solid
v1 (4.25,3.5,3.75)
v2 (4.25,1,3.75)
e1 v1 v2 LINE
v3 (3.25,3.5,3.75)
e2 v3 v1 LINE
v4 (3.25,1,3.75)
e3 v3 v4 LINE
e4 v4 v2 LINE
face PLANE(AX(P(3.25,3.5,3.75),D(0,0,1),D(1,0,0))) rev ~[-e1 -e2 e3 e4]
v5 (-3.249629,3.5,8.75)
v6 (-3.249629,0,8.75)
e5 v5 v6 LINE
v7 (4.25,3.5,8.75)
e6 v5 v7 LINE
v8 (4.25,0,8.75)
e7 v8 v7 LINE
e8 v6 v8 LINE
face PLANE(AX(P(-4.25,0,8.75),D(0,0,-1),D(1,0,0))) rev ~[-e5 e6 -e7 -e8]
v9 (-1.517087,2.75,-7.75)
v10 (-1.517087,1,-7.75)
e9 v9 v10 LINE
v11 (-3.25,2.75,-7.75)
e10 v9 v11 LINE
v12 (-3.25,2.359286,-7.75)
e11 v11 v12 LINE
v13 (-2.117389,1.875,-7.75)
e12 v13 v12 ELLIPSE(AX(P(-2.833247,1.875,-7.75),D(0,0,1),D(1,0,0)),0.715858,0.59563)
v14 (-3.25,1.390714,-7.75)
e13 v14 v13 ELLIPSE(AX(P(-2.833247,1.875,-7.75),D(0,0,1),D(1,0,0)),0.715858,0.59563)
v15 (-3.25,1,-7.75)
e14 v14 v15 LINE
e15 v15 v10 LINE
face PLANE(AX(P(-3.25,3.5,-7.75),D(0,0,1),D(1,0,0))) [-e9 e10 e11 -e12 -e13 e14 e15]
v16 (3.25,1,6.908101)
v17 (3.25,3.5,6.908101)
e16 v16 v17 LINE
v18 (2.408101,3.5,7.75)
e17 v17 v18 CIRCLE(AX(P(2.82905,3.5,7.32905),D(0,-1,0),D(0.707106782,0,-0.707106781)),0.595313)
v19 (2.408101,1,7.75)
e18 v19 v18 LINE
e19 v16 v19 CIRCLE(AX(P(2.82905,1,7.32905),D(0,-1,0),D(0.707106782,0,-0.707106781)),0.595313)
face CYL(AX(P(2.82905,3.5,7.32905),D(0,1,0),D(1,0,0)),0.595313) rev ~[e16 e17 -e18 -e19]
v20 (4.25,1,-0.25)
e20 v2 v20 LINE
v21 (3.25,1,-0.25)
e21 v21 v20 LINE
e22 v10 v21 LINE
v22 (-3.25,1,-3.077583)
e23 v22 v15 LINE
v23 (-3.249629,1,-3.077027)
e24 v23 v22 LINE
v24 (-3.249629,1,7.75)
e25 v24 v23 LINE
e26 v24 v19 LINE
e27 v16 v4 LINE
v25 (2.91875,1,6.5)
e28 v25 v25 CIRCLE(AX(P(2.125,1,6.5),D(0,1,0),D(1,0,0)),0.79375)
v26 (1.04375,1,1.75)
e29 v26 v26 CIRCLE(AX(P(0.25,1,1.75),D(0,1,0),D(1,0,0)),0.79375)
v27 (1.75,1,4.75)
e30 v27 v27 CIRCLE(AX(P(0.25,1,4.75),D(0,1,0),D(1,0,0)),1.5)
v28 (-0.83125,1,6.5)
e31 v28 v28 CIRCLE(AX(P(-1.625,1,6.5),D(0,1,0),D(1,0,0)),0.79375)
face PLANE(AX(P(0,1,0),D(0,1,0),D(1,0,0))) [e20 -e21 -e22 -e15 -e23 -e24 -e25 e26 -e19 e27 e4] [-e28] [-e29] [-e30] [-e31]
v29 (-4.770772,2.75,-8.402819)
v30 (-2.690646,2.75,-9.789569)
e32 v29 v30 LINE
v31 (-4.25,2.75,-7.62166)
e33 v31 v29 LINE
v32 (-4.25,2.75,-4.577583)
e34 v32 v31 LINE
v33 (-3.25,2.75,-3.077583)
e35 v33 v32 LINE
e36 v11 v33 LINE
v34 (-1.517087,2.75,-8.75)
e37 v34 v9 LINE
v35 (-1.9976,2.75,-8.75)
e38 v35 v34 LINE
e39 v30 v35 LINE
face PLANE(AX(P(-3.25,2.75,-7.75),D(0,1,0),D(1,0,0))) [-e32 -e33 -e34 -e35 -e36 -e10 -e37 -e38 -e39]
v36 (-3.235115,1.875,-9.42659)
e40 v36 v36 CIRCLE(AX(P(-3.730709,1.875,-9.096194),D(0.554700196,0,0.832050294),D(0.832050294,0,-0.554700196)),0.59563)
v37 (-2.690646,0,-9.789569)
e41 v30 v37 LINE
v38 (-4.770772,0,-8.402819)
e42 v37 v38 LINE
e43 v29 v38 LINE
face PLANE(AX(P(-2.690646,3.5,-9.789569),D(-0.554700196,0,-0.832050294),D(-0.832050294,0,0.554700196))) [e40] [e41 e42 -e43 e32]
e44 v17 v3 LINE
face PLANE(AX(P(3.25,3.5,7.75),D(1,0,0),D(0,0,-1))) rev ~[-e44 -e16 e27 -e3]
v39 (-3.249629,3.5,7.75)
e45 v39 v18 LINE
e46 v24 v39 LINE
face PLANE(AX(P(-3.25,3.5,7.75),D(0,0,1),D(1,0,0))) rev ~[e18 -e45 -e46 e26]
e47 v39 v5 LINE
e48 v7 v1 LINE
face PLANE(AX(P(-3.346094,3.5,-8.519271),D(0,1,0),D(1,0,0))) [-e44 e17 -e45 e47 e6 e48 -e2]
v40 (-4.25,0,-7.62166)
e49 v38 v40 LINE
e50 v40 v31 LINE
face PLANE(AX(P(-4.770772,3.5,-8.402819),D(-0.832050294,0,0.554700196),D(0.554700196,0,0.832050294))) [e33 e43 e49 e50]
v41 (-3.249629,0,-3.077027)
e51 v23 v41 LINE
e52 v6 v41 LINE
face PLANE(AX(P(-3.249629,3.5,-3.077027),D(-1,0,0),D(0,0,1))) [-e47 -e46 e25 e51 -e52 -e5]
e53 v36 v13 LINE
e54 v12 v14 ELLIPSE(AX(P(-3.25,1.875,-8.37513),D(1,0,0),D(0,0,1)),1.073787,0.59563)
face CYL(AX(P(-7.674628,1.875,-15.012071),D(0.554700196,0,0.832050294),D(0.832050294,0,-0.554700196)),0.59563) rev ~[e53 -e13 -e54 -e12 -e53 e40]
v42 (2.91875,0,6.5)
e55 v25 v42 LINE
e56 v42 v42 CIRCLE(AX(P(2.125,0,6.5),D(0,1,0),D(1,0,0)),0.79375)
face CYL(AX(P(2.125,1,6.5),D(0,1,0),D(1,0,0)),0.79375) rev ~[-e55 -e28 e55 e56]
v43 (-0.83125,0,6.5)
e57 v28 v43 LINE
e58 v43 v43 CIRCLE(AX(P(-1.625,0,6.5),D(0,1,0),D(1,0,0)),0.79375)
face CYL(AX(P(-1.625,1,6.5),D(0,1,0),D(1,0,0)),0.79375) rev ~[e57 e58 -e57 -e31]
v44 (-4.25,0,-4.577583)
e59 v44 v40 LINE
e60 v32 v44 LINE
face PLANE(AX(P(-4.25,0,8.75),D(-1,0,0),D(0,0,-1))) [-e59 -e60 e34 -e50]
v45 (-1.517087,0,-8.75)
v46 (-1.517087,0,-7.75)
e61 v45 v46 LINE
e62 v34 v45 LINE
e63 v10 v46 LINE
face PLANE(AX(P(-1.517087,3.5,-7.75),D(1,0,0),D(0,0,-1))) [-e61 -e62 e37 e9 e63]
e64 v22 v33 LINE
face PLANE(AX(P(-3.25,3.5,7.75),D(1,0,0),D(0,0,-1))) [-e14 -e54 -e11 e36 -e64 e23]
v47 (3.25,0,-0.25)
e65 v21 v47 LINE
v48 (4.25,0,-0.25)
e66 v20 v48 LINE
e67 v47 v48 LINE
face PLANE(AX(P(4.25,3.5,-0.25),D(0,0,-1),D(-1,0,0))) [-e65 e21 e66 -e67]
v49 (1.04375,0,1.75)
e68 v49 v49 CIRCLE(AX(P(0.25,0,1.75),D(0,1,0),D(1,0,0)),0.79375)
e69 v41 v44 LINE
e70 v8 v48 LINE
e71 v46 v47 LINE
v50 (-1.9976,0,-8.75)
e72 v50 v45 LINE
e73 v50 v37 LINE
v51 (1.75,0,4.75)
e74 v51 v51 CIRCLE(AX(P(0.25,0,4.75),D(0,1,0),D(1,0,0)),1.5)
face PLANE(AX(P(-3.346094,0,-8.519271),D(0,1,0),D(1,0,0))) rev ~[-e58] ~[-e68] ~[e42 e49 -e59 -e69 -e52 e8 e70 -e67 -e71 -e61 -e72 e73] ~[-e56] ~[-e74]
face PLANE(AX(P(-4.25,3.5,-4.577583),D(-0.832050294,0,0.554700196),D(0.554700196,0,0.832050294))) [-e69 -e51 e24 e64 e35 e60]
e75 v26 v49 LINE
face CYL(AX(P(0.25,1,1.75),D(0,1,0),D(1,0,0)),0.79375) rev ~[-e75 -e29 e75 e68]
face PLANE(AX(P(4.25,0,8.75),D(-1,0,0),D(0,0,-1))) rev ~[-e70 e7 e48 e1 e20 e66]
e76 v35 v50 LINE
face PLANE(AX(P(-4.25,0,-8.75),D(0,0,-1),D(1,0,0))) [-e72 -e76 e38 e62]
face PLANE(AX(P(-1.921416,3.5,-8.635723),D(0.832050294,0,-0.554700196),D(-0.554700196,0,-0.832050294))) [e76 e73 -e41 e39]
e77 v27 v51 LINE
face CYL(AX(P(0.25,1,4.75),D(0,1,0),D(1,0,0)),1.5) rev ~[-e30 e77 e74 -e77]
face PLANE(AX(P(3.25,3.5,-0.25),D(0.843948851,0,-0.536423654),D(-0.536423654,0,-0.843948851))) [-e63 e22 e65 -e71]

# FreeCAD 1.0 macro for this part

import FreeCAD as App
import Part
import Sketcher

doc = App.newDocument("Part")
body = doc.addObject("PartDesign::Body", "Body")

# Sketch on XZ plane
sketch1 = doc.addObject("Sketcher::SketchObject", "Sketch")
body.addObject(sketch1)
sketch1.AttachmentSupport = (doc.XZ_Plane, [""])
sketch1.MapMode = "FlatFace"
sketch1.addGeometry([
    Part.LineSegment(App.Vector(-4, -9, 0), App.Vector(-4, 9, 0)),
    Part.LineSegment(App.Vector(-4, 9, 0), App.Vector(4, 9, 0)),
    Part.LineSegment(App.Vector(4, 9, 0), App.Vector(4, -9, 0)),
    Part.LineSegment(App.Vector(4, -9, 0), App.Vector(-4, -9, 0)),
], False)
sketch1.addConstraint([
    Sketcher.Constraint("Coincident", 0, 2, 1, 1),
    Sketcher.Constraint("Coincident", 1, 2, 2, 1),
    Sketcher.Constraint("Coincident", 2, 2, 3, 1),
    Sketcher.Constraint("Coincident", 3, 2, 0, 1),
    Sketcher.Constraint("Vertical", 0),
    Sketcher.Constraint("Horizontal", 1),
    Sketcher.Constraint("Vertical", 2),
    Sketcher.Constraint("Horizontal", 3),
    Sketcher.Constraint("Symmetric", 0, 2, 2, 2, -1, 1),
    Sketcher.Constraint("DistanceX", 1, 1, 1, 2, 8.5),
    Sketcher.Constraint("DistanceY", 0, 1, 0, 2, 17.5),
])
pad1 = doc.addObject("PartDesign::Pad", "Pad")
body.addObject(pad1)
pad1.Profile = sketch1
pad1.Length = 3.5
pad1.Reversed = True

# Sketch on XZ plane
sketch2 = doc.addObject("Sketcher::SketchObject", "Sketch001")
body.addObject(sketch2)
sketch2.AttachmentSupport = (doc.XZ_Plane, [""])
sketch2.MapMode = "FlatFace"
sketch2.AttachmentOffset = App.Placement(App.Vector(0, 0, -3.5), App.Rotation())
sketch2.addGeometry([
    Part.LineSegment(App.Vector(-3, -8, 0), App.Vector(-3, 8, 0)),
    Part.LineSegment(App.Vector(-3, 8, 0), App.Vector(3, 8, 0)),
    Part.LineSegment(App.Vector(3, 8, 0), App.Vector(3, -8, 0)),
    Part.LineSegment(App.Vector(3, -8, 0), App.Vector(-3, -8, 0)),
], False)
sketch2.addConstraint([
    Sketcher.Constraint("Coincident", 0, 2, 1, 1),
    Sketcher.Constraint("Coincident", 1, 2, 2, 1),
    Sketcher.Constraint("Coincident", 2, 2, 3, 1),
    Sketcher.Constraint("Coincident", 3, 2, 0, 1),
    Sketcher.Constraint("Vertical", 0),
    Sketcher.Constraint("Horizontal", 1),
    Sketcher.Constraint("Vertical", 2),
    Sketcher.Constraint("Horizontal", 3),
    Sketcher.Constraint("Symmetric", 0, 2, 2, 2, -1, 1),
    Sketcher.Constraint("DistanceX", 1, 1, 1, 2, 6.5),
    Sketcher.Constraint("DistanceY", 0, 1, 0, 2, 15.5),
])
pocket1 = doc.addObject("PartDesign::Pocket", "Pocket")
body.addObject(pocket1)
pocket1.Profile = sketch2
pocket1.Length = 2.5
pocket1.Reversed = True

# Sketch on XZ plane
sketch3 = doc.addObject("Sketcher::SketchObject", "Sketch002")
body.addObject(sketch3)
sketch3.AttachmentSupport = (doc.XZ_Plane, [""])
sketch3.MapMode = "FlatFace"
sketch3.AttachmentOffset = App.Placement(App.Vector(0, 0, -1), App.Rotation())
sketch3.addGeometry(Part.Circle(App.Vector(0.2, 4.8, 0), App.Vector(0, 0, 1), 1.5), False)
sketch3.addConstraint([
    Sketcher.Constraint("Diameter", 0, 3.0),
    Sketcher.Constraint("DistanceX", -1, 1, 0, 3, 0.25),
    Sketcher.Constraint("DistanceY", -1, 1, 0, 3, 4.75),
])
pocket2 = doc.addObject("PartDesign::Pocket", "Pocket001")
body.addObject(pocket2)
pocket2.Profile = sketch3
pocket2.Type = "ThroughAll"
pocket2.Reversed = True

# Sketch on XZ plane
sketch4 = doc.addObject("Sketcher::SketchObject", "Sketch003")
body.addObject(sketch4)
sketch4.AttachmentSupport = (doc.XZ_Plane, [""])
sketch4.MapMode = "FlatFace"
sketch4.AttachmentOffset = App.Placement(App.Vector(0, 0, -3.5), App.Rotation())
sketch4.addGeometry(Part.Circle(App.Vector(2.8, 7.3, 0), App.Vector(0, 0, 1), 0.6), False)
sketch4.addConstraint([
    Sketcher.Constraint("Diameter", 0, 1.190625),
    Sketcher.Constraint("DistanceX", -1, 1, 0, 3, 2.82905),
    Sketcher.Constraint("DistanceY", -1, 1, 0, 3, 7.32905),
])
pocket3 = doc.addObject("PartDesign::Pocket", "Pocket002")
body.addObject(pocket3)
pocket3.Profile = sketch4
pocket3.Length = 2.5
pocket3.Reversed = True

# Sketch on XZ plane
sketch5 = doc.addObject("Sketcher::SketchObject", "Sketch004")
body.addObject(sketch5)
sketch5.AttachmentSupport = (doc.XZ_Plane, [""])
sketch5.MapMode = "FlatFace"
sketch5.AttachmentOffset = App.Placement(App.Vector(0, 0, -1), App.Rotation())
sketch5.addGeometry([
    Part.Circle(App.Vector(0.2, 1.8, 0), App.Vector(0, 0, 1), 0.8),
    Part.Circle(App.Vector(-1.6, 6.5, 0), App.Vector(0, 0, 1), 0.8),
    Part.Circle(App.Vector(2.1, 6.5, 0), App.Vector(0, 0, 1), 0.8),
], False)
sketch5.addConstraint([
    Sketcher.Constraint("Equal", 0, 1),
    Sketcher.Constraint("Equal", 1, 2),
    Sketcher.Constraint("Horizontal", 1, 3, 2, 3),
    Sketcher.Constraint("Diameter", 0, 1.5875),
    Sketcher.Constraint("DistanceY", -1, 1, 1, 3, 6.5),
    Sketcher.Constraint("DistanceX", -1, 1, 0, 3, 0.25),
    Sketcher.Constraint("DistanceY", -1, 1, 0, 3, 1.75),
    Sketcher.Constraint("DistanceX", 1, 3, 2, 3, 3.75),
    Sketcher.Constraint("DistanceX", 1, 3, -1, 1, 1.625),
])
pocket4 = doc.addObject("PartDesign::Pocket", "Pocket003")
body.addObject(pocket4)
pocket4.Profile = sketch5
pocket4.Type = "ThroughAll"
pocket4.Reversed = True

# Sketch on XZ plane
sketch6 = doc.addObject("Sketcher::SketchObject", "Sketch005")
body.addObject(sketch6)
sketch6.AttachmentSupport = (doc.XZ_Plane, [""])
sketch6.MapMode = "FlatFace"
sketch6.AttachmentOffset = App.Placement(App.Vector(0, 0, -3.5), App.Rotation())
sketch6.addGeometry([
    Part.LineSegment(App.Vector(-2.7, -9.8, 0), App.Vector(-4.8, -8.4, 0)),  # 0
    Part.LineSegment(App.Vector(-4.8, -8.4, 0), App.Vector(-4, -7.2, 0)),  # 1
    Part.LineSegment(App.Vector(-4, -7.2, 0), App.Vector(-3.4, -7.6, 0)),  # 2
    Part.LineSegment(App.Vector(-3.4, -7.6, 0), App.Vector(-2.5, -8.2, 0)),  # 3
    Part.LineSegment(App.Vector(-2.5, -8.2, 0), App.Vector(-1.9, -8.6, 0)),  # 4
    Part.LineSegment(App.Vector(-1.9, -8.6, 0), App.Vector(-2.7, -9.8, 0)),  # 5
], False)
sketch6.addConstraint([
    Sketcher.Constraint("Coincident", 0, 2, 1, 1),
    Sketcher.Constraint("Coincident", 1, 2, 2, 1),
    Sketcher.Constraint("Coincident", 2, 2, 3, 1),
    Sketcher.Constraint("Coincident", 3, 2, 4, 1),
    Sketcher.Constraint("Coincident", 4, 2, 5, 1),
    Sketcher.Constraint("Coincident", 5, 2, 0, 1),
    Sketcher.Constraint("Perpendicular", 0, 1),
    Sketcher.Constraint("Perpendicular", 1, 2),
    Sketcher.Constraint("Parallel", 2, 3),
    Sketcher.Constraint("Parallel", 3, 4),
    Sketcher.Constraint("Perpendicular", 4, 5),
    Sketcher.Constraint("Equal", 2, 4),
    Sketcher.Constraint("Distance", 0, 2.5),
    Sketcher.Constraint("Distance", 1, 1.38675),
    Sketcher.Constraint("Distance", 2, 0.70898),
    Sketcher.Constraint("DistanceY", 0, 2, -1, 1, 8.402819),
    Sketcher.Constraint("DistanceX", 1, 2, -1, 1, 4.001541),
    Sketcher.Constraint("DistanceY", 3, 2, -1, 1, 8.242452),
])
pad2 = doc.addObject("PartDesign::Pad", "Pad001")
body.addObject(pad2)
pad2.Profile = sketch6
pad2.Length = 3.5

# Sketch on XZ plane
sketch7 = doc.addObject("Sketcher::SketchObject", "Sketch006")
body.addObject(sketch7)
sketch7.AttachmentSupport = (doc.XZ_Plane, [""])
sketch7.MapMode = "FlatFace"
sketch7.AttachmentOffset = App.Placement(App.Vector(0, 0, -3.5), App.Rotation())
sketch7.addGeometry([
    Part.LineSegment(App.Vector(-6, -13, 0), App.Vector(-6, -2, 0)),
    Part.LineSegment(App.Vector(-6, -2, 0), App.Vector(0, -2, 0)),
    Part.LineSegment(App.Vector(0, -2, 0), App.Vector(0, -13, 0)),
    Part.LineSegment(App.Vector(0, -13, 0), App.Vector(-6, -13, 0)),
], False)
sketch7.addConstraint([
    Sketcher.Constraint("Coincident", 0, 2, 1, 1),
    Sketcher.Constraint("Coincident", 1, 2, 2, 1),
    Sketcher.Constraint("Coincident", 2, 2, 3, 1),
    Sketcher.Constraint("Coincident", 3, 2, 0, 1),
    Sketcher.Constraint("Vertical", 0),
    Sketcher.Constraint("Horizontal", 1),
    Sketcher.Constraint("Vertical", 2),
    Sketcher.Constraint("Horizontal", 3),
    Sketcher.Constraint("DistanceX", 1, 1, 1, 2, 6.011083),
    Sketcher.Constraint("DistanceY", 0, 1, 0, 2, 10.896718),
    Sketcher.Constraint("DistanceX", 0, 2, -1, 1, 6.255542),
    Sketcher.Constraint("DistanceY", 0, 2, -1, 1, 2.301641),
])
pocket5 = doc.addObject("PartDesign::Pocket", "Pocket004")
body.addObject(pocket5)
pocket5.Profile = sketch7
pocket5.Length = 0.75
pocket5.Reversed = True

# Sketch on an angled plane
sketch8 = doc.addObject("Sketcher::SketchObject", "Sketch007")
body.addObject(sketch8)
sketch8.Placement = App.Placement(App.Vector(-5.346154, 0, -8.019231), App.Rotation(App.Vector(-0.832050294, 0, 0.554700196), App.Vector(0, 0.999999999, 0), App.Vector(-0.554700196, 0, -0.832050294), "ZXY"))
sketch8.addGeometry(Part.Circle(App.Vector(-1.9, 1.9, 0), App.Vector(0, 0, 1), 0.6), False)
sketch8.addConstraint([
    Sketcher.Constraint("Diameter", 0, 1.19126),
    Sketcher.Constraint("DistanceY", -1, 1, 0, 3, 1.875),
    Sketcher.Constraint("DistanceX", 0, 3, -1, 1, 1.941523),
])
doc.recompute()
hole = doc.addObject("PartDesign::Hole", "Hole")
body.addObject(hole)
hole.Profile = sketch8
hole.ThreadType = "None"
hole.Diameter = 1.19126
hole.DepthType = "Dimension"
hole.Depth = 7.11
hole.DrillPoint = "Angled"
hole.DrillPointAngle = 118

# Sketch on XZ plane
sketch9 = doc.addObject("Sketcher::SketchObject", "Sketch008")
body.addObject(sketch9)
sketch9.AttachmentSupport = (doc.XZ_Plane, [""])
sketch9.MapMode = "FlatFace"
sketch9.AttachmentOffset = App.Placement(App.Vector(0, 0, -3.5), App.Rotation())
sketch9.addGeometry([
    Part.LineSegment(App.Vector(-4.2, 8.8, 0), App.Vector(-3.2, 8.8, 0)),
    Part.LineSegment(App.Vector(-3.2, 8.8, 0), App.Vector(-3.2, -3.1, 0)),
    Part.LineSegment(App.Vector(-3.2, -3.1, 0), App.Vector(-4.2, -4.6, 0)),
    Part.LineSegment(App.Vector(-4.2, -4.6, 0), App.Vector(-4.2, 8.8, 0)),
], False)
sketch9.addConstraint([
    Sketcher.Constraint("Coincident", 0, 2, 1, 1),
    Sketcher.Constraint("Coincident", 1, 2, 2, 1),
    Sketcher.Constraint("Coincident", 2, 2, 3, 1),
    Sketcher.Constraint("Coincident", 3, 2, 0, 1),
    Sketcher.Constraint("Horizontal", 0),
    Sketcher.Constraint("Vertical", 1),
    Sketcher.Constraint("Vertical", 3),
    Sketcher.Constraint("DistanceY", -1, 1, 0, 2, 8.75),
    Sketcher.Constraint("DistanceX", 2, 2, -1, 1, 4.25),
    Sketcher.Constraint("DistanceX", 0, 1, 0, 2, 1.000371),
    Sketcher.Constraint("DistanceY", 1, 2, 1, 1, 11.827027),
    Sketcher.Constraint("DistanceY", 3, 1, 3, 2, 13.327583),
])
pocket6 = doc.addObject("PartDesign::Pocket", "Pocket005")
body.addObject(pocket6)
pocket6.Profile = sketch9
pocket6.Type = "UpToFirst"
pocket6.Reversed = True

# Sketch on XZ plane
sketch10 = doc.addObject("Sketcher::SketchObject", "Sketch009")
body.addObject(sketch10)
sketch10.AttachmentSupport = (doc.XZ_Plane, [""])
sketch10.MapMode = "FlatFace"
sketch10.AttachmentOffset = App.Placement(App.Vector(0, 0, -3.5), App.Rotation())
sketch10.addGeometry([
    Part.LineSegment(App.Vector(-1.5, -7.8, 0), App.Vector(3.2, -0.2, 0)),  # 0
    Part.LineSegment(App.Vector(3.2, -0.2, 0), App.Vector(4.2, -0.2, 0)),  # 1
    Part.LineSegment(App.Vector(4.2, -0.2, 0), App.Vector(4.2, -8.8, 0)),  # 2
    Part.LineSegment(App.Vector(4.2, -8.8, 0), App.Vector(-1.5, -8.8, 0)),  # 3
    Part.LineSegment(App.Vector(-1.5, -8.8, 0), App.Vector(-1.5, -7.8, 0)),  # 4
], False)
sketch10.addConstraint([
    Sketcher.Constraint("Coincident", 0, 2, 1, 1),
    Sketcher.Constraint("Coincident", 1, 2, 2, 1),
    Sketcher.Constraint("Coincident", 2, 2, 3, 1),
    Sketcher.Constraint("Coincident", 3, 2, 4, 1),
    Sketcher.Constraint("Coincident", 4, 2, 0, 1),
    Sketcher.Constraint("Horizontal", 1),
    Sketcher.Constraint("Vertical", 2),
    Sketcher.Constraint("Horizontal", 3),
    Sketcher.Constraint("Vertical", 4),
    Sketcher.Constraint("Equal", 1, 4),
    Sketcher.Constraint("DistanceX", 1, 1, 1, 2, 1.0),
    Sketcher.Constraint("DistanceY", 2, 2, 2, 1, 8.5),
    Sketcher.Constraint("DistanceX", -1, 1, 0, 2, 3.25),
    Sketcher.Constraint("DistanceY", 0, 2, -1, 1, 0.25),
    Sketcher.Constraint("DistanceX", 3, 2, 3, 1, 5.767087),
])
pocket7 = doc.addObject("PartDesign::Pocket", "Pocket006")
body.addObject(pocket7)
pocket7.Profile = sketch10
pocket7.Length = 3.5
pocket7.Reversed = True

# Sketch on XZ plane
sketch11 = doc.addObject("Sketcher::SketchObject", "Sketch010")
body.addObject(sketch11)
sketch11.AttachmentSupport = (doc.XZ_Plane, [""])
sketch11.MapMode = "FlatFace"
sketch11.AttachmentOffset = App.Placement(App.Vector(0, 0, -3.5), App.Rotation())
sketch11.addGeometry([
    Part.LineSegment(App.Vector(3.2, -0.2, 0), App.Vector(3.2, 3.8, 0)),
    Part.LineSegment(App.Vector(3.2, 3.8, 0), App.Vector(4.2, 3.8, 0)),
    Part.LineSegment(App.Vector(4.2, 3.8, 0), App.Vector(4.2, -0.2, 0)),
    Part.LineSegment(App.Vector(4.2, -0.2, 0), App.Vector(3.2, -0.2, 0)),
], False)
sketch11.addConstraint([
    Sketcher.Constraint("Coincident", 0, 2, 1, 1),
    Sketcher.Constraint("Coincident", 1, 2, 2, 1),
    Sketcher.Constraint("Coincident", 2, 2, 3, 1),
    Sketcher.Constraint("Coincident", 3, 2, 0, 1),
    Sketcher.Constraint("Vertical", 0),
    Sketcher.Constraint("Horizontal", 1),
    Sketcher.Constraint("Vertical", 2),
    Sketcher.Constraint("Horizontal", 3),
    Sketcher.Constraint("DistanceX", 1, 1, 1, 2, 1.0),
    Sketcher.Constraint("DistanceY", 0, 1, 0, 2, 4.0),
    Sketcher.Constraint("DistanceX", -1, 1, 0, 2, 3.25),
    Sketcher.Constraint("DistanceY", -1, 1, 0, 2, 3.75),
])
pocket8 = doc.addObject("PartDesign::Pocket", "Pocket007")
body.addObject(pocket8)
pocket8.Profile = sketch11
pocket8.Length = 2.5
pocket8.Reversed = True

doc.recompute()
